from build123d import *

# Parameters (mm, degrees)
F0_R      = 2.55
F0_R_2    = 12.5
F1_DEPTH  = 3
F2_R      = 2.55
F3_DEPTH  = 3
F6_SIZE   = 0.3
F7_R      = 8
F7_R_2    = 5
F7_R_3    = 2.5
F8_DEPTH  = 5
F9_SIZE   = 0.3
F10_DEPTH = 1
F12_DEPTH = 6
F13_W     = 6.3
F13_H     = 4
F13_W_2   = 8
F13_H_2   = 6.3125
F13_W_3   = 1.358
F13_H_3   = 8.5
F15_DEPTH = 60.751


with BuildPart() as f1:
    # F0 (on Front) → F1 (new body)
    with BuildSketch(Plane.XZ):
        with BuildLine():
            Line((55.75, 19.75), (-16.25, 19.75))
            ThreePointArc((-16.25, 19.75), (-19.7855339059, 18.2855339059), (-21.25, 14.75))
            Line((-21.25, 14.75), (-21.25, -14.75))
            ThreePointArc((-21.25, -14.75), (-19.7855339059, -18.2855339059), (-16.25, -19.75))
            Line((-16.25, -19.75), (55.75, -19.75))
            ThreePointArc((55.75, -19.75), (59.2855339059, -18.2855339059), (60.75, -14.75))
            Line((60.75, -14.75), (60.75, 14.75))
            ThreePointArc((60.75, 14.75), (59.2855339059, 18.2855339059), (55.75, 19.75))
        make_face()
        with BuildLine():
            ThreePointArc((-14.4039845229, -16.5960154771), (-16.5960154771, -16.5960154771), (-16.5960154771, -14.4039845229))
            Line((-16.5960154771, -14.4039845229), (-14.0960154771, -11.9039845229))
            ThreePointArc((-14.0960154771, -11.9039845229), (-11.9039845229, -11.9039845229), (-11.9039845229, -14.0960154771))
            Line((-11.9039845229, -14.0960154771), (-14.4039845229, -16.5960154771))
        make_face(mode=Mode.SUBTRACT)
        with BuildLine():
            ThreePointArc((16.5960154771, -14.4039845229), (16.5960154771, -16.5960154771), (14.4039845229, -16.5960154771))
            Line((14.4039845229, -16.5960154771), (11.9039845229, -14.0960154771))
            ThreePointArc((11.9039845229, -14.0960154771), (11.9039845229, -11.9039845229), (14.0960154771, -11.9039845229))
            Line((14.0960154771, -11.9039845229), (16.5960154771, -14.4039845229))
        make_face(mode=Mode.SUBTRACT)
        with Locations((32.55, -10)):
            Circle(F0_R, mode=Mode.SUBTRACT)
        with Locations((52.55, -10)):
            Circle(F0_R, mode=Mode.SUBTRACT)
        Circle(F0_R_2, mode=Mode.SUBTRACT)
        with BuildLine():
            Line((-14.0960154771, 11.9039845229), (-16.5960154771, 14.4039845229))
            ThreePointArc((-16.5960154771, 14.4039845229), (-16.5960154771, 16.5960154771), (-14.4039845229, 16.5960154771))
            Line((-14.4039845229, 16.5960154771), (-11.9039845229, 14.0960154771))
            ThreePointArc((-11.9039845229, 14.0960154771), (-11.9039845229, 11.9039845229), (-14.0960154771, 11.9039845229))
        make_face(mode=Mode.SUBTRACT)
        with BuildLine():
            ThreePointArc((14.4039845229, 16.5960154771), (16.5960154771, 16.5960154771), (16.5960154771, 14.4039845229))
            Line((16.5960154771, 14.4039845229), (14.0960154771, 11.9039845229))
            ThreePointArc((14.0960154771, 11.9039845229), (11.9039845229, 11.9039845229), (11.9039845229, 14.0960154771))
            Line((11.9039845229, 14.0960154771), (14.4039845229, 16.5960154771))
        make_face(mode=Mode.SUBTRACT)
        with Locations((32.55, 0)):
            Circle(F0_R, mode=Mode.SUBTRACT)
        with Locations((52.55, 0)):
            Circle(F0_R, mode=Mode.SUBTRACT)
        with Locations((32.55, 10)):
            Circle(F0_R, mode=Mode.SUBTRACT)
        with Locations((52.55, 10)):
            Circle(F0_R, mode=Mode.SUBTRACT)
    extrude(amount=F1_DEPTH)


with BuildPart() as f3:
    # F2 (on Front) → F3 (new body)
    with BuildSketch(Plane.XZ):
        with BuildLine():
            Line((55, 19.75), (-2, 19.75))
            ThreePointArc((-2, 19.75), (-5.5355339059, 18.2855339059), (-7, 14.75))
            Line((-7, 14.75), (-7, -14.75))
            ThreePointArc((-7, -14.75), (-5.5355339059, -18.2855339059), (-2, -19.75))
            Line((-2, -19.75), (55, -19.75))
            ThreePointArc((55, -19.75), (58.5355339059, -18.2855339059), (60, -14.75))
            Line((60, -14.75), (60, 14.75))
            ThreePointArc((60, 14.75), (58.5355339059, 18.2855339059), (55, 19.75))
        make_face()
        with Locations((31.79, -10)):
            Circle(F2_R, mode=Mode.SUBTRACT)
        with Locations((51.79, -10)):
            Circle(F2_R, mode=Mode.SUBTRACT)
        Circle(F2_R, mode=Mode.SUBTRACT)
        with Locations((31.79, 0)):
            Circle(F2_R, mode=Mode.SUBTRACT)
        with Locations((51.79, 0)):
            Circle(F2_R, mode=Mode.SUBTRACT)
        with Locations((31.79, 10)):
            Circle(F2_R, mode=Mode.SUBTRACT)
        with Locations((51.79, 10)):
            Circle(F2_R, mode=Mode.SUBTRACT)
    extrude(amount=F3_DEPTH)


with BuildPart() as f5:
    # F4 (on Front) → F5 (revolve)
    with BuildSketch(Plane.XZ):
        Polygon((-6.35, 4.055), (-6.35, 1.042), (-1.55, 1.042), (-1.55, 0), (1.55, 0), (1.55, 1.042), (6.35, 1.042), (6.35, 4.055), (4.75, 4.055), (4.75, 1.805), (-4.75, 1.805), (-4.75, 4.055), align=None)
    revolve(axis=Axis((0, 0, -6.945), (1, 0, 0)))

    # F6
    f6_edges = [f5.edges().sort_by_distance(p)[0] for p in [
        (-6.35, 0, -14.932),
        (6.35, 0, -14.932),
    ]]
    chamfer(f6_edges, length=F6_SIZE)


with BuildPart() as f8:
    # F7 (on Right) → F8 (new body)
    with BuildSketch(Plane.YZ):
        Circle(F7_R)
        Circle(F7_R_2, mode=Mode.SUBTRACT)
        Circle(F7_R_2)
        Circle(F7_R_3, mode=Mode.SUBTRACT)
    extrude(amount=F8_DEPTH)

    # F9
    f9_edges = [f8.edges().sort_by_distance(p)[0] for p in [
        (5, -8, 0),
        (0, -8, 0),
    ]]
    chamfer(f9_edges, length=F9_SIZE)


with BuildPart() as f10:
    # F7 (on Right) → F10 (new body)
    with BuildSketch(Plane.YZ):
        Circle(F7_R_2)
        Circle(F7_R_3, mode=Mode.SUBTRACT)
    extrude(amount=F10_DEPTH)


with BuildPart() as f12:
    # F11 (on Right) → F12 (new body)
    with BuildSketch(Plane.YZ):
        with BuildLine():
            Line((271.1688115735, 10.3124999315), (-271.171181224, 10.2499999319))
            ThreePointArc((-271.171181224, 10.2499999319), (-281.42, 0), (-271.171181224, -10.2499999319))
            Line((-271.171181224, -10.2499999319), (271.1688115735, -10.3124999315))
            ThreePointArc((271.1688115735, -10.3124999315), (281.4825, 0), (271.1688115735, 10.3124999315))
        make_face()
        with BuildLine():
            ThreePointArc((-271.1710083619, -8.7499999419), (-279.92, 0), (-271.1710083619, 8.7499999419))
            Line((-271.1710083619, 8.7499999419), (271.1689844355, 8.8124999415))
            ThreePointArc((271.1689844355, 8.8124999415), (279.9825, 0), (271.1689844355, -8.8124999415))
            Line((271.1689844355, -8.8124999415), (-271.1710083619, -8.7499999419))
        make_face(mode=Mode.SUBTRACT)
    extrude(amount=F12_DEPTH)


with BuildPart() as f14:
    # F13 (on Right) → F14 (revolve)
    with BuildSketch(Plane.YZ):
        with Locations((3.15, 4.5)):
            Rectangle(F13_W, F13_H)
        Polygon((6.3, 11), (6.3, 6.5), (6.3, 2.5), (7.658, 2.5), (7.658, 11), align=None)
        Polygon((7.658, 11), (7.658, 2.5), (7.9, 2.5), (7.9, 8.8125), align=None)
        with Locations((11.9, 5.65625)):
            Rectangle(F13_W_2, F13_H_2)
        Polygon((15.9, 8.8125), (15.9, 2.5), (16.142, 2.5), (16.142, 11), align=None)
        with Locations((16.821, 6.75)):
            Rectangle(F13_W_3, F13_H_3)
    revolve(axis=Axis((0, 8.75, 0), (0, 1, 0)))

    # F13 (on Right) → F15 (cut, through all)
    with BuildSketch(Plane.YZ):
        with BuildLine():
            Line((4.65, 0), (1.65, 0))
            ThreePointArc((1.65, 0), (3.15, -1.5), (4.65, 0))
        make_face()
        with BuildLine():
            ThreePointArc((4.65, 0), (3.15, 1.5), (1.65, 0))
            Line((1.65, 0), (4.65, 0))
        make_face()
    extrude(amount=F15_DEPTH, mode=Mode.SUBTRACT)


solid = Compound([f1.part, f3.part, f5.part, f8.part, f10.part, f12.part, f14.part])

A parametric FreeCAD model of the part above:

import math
import FreeCAD as App
import Part
import Sketcher

V = App.Vector


def edges_at(feature, points):
    """Names of the edges that pass closest to the given points."""
    edges = feature.Shape.Edges
    near = lambda p: min(range(len(edges)), key=lambda i: edges[i].distToShape(Part.Vertex(*p))[0])
    return sorted({f"Edge{near(p) + 1}" for p in points})

doc = App.newDocument("Part")
body = doc.addObject("PartDesign::Body", "Body")

# Sketch on XZ plane
sketch1 = body.newObject("Sketcher::SketchObject", "Sketch")
sketch1.AttachmentSupport = (doc.getObject("XZ_Plane"), [""])
sketch1.MapMode = "FlatFace"
sketch1.addGeometry(Part.LineSegment(V(55.75, 19.75, 0), V(-16.25, 19.75, 0)), False)
sketch1.addGeometry(Part.ArcOfCircle(Part.Circle(V(-16.25, 14.75, 0), V(0, 0, 1), 5), math.radians(90), math.radians(180)), False)
sketch1.addGeometry(Part.LineSegment(V(-21.25, 14.75, 0), V(-21.25, -14.75, 0)), False)
sketch1.addGeometry(Part.ArcOfCircle(Part.Circle(V(-16.25, -14.75, 0), V(0, 0, 1), 5), math.radians(180), math.radians(270)), False)
sketch1.addGeometry(Part.LineSegment(V(-16.25, -19.75, 0), V(55.75, -19.75, 0)), False)
sketch1.addGeometry(Part.ArcOfCircle(Part.Circle(V(55.75, -14.75, 0), V(0, 0, 1), 5), math.radians(-90), math.radians(0)), False)
sketch1.addGeometry(Part.LineSegment(V(60.75, -14.75, 0), V(60.75, 14.75, 0)), False)
sketch1.addGeometry(Part.ArcOfCircle(Part.Circle(V(55.75, 14.75, 0), V(0, 0, 1), 5), math.radians(0), math.radians(90)), False)
sketch1.addGeometry(Part.LineSegment(V(-11.903985, -14.096015, 0), V(-14.403985, -16.596015, 0)), False)
sketch1.addGeometry(Part.ArcOfCircle(Part.Circle(V(-15.5, -15.5, 0), V(0, 0, 1), 1.55), math.radians(135), math.radians(315)), False)
sketch1.addGeometry(Part.LineSegment(V(-16.596015, -14.403985, 0), V(-14.096015, -11.903985, 0)), False)
sketch1.addGeometry(Part.ArcOfCircle(Part.Circle(V(-13, -13, 0), V(0, 0, 1), 1.55), math.radians(-45), math.radians(135)), False)
sketch1.addGeometry(Part.LineSegment(V(14.096015, -11.903985, 0), V(16.596015, -14.403985, 0)), False)
sketch1.addGeometry(Part.ArcOfCircle(Part.Circle(V(15.5, -15.5, 0), V(0, 0, 1), 1.55), math.radians(-135), math.radians(45)), False)
sketch1.addGeometry(Part.LineSegment(V(14.403985, -16.596015, 0), V(11.903985, -14.096015, 0)), False)
sketch1.addGeometry(Part.ArcOfCircle(Part.Circle(V(13, -13, 0), V(0, 0, 1), 1.55), math.radians(45), math.radians(225)), False)
sketch1.addGeometry(Part.Circle(V(32.55, -10, 0), V(0, 0, 1), 2.55), False)
sketch1.addGeometry(Part.Circle(V(52.55, -10, 0), V(0, 0, 1), 2.55), False)
sketch1.addGeometry(Part.Circle(V(0, 0, 0), V(0, 0, 1), 12.5), False)
sketch1.addGeometry(Part.ArcOfCircle(Part.Circle(V(-13, 13, 0), V(0, 0, 1), 1.55), math.radians(-135), math.radians(45)), False)
sketch1.addGeometry(Part.LineSegment(V(-14.096015, 11.903985, 0), V(-16.596015, 14.403985, 0)), False)
sketch1.addGeometry(Part.ArcOfCircle(Part.Circle(V(-15.5, 15.5, 0), V(0, 0, 1), 1.55), math.radians(45), math.radians(225)), False)
sketch1.addGeometry(Part.LineSegment(V(-14.403985, 16.596015, 0), V(-11.903985, 14.096015, 0)), False)
sketch1.addGeometry(Part.LineSegment(V(11.903985, 14.096015, 0), V(14.403985, 16.596015, 0)), False)
sketch1.addGeometry(Part.ArcOfCircle(Part.Circle(V(15.5, 15.5, 0), V(0, 0, 1), 1.55), math.radians(-45), math.radians(135)), False)
sketch1.addGeometry(Part.LineSegment(V(16.596015, 14.403985, 0), V(14.096015, 11.903985, 0)), False)
sketch1.addGeometry(Part.ArcOfCircle(Part.Circle(V(13, 13, 0), V(0, 0, 1), 1.55), math.radians(135), math.radians(315)), False)
sketch1.addGeometry(Part.Circle(V(32.55, 0, 0), V(0, 0, 1), 2.55), False)
sketch1.addGeometry(Part.Circle(V(52.55, 0, 0), V(0, 0, 1), 2.55), False)
sketch1.addGeometry(Part.Circle(V(32.55, 10, 0), V(0, 0, 1), 2.55), False)
sketch1.addGeometry(Part.Circle(V(52.55, 10, 0), V(0, 0, 1), 2.55), False)
sketch1.addConstraint(Sketcher.Constraint("Tangent", 0, 2, 1, 1))
sketch1.addConstraint(Sketcher.Constraint("Tangent", 1, 2, 2, 1))
sketch1.addConstraint(Sketcher.Constraint("Tangent", 2, 2, 3, 1))
sketch1.addConstraint(Sketcher.Constraint("Tangent", 3, 2, 4, 1))
sketch1.addConstraint(Sketcher.Constraint("Tangent", 4, 2, 5, 1))
sketch1.addConstraint(Sketcher.Constraint("Tangent", 5, 2, 6, 1))
sketch1.addConstraint(Sketcher.Constraint("Tangent", 6, 2, 7, 1))
sketch1.addConstraint(Sketcher.Constraint("Tangent", 7, 2, 0, 1))
sketch1.addConstraint(Sketcher.Constraint("Tangent", 8, 2, 9, 2))
sketch1.addConstraint(Sketcher.Constraint("Tangent", 9, 1, 10, 1))
sketch1.addConstraint(Sketcher.Constraint("Tangent", 10, 2, 11, 2))
sketch1.addConstraint(Sketcher.Constraint("Tangent", 11, 1, 8, 1))
sketch1.addConstraint(Sketcher.Constraint("Tangent", 12, 2, 13, 2))
sketch1.addConstraint(Sketcher.Constraint("Tangent", 13, 1, 14, 1))
sketch1.addConstraint(Sketcher.Constraint("Tangent", 14, 2, 15, 2))
sketch1.addConstraint(Sketcher.Constraint("Tangent", 15, 1, 12, 1))
sketch1.addConstraint(Sketcher.Constraint("Tangent", 19, 1, 20, 1))
sketch1.addConstraint(Sketcher.Constraint("Tangent", 20, 2, 21, 2))
sketch1.addConstraint(Sketcher.Constraint("Tangent", 21, 1, 22, 1))
sketch1.addConstraint(Sketcher.Constraint("Tangent", 22, 2, 19, 2))
sketch1.addConstraint(Sketcher.Constraint("Tangent", 23, 2, 24, 2))
sketch1.addConstraint(Sketcher.Constraint("Tangent", 24, 1, 25, 1))
sketch1.addConstraint(Sketcher.Constraint("Tangent", 25, 2, 26, 2))
sketch1.addConstraint(Sketcher.Constraint("Tangent", 26, 1, 23, 1))
sketch1.addConstraint(Sketcher.Constraint("Horizontal", 0))
sketch1.addConstraint(Sketcher.Constraint("Vertical", 2))
sketch1.addConstraint(Sketcher.Constraint("Horizontal", 4))
sketch1.addConstraint(Sketcher.Constraint("Vertical", 6))
sketch1.addConstraint(Sketcher.Constraint("Coincident", 18, 3, -1, 1))
sketch1.addConstraint(Sketcher.Constraint("Equal", 1, 3))
sketch1.addConstraint(Sketcher.Constraint("Equal", 3, 5))
sketch1.addConstraint(Sketcher.Constraint("Equal", 5, 7))
sketch1.addConstraint(Sketcher.Constraint("Equal", 9, 11))
sketch1.addConstraint(Sketcher.Constraint("Equal", 11, 13))
sketch1.addConstraint(Sketcher.Constraint("Equal", 13, 15))
sketch1.addConstraint(Sketcher.Constraint("Equal", 16, 17))
sketch1.addConstraint(Sketcher.Constraint("Equal", 15, 19))
sketch1.addConstraint(Sketcher.Constraint("Equal", 19, 21))
sketch1.addConstraint(Sketcher.Constraint("Equal", 21, 24))
sketch1.addConstraint(Sketcher.Constraint("Equal", 24, 26))
sketch1.addConstraint(Sketcher.Constraint("Equal", 17, 27))
sketch1.addConstraint(Sketcher.Constraint("Equal", 27, 28))
sketch1.addConstraint(Sketcher.Constraint("Equal", 28, 29))
sketch1.addConstraint(Sketcher.Constraint("Equal", 29, 30))
sketch1.addConstraint(Sketcher.Constraint("Symmetric", 15, 3, 19, 3, -1, 1))
sketch1.addConstraint(Sketcher.Constraint("Symmetric", 13, 3, 21, 3, -1, 1))
sketch1.addConstraint(Sketcher.Constraint("Symmetric", 9, 3, 24, 3, -1, 1))
sketch1.addConstraint(Sketcher.Constraint("Symmetric", 11, 3, 26, 3, -1, 1))
sketch1.addConstraint(Sketcher.Constraint("Symmetric", 9, 3, 13, 3, -2))
sketch1.addConstraint(Sketcher.Constraint("Symmetric", 11, 3, 15, 3, -2))
sketch1.addConstraint(Sketcher.Constraint("Symmetric", 16, 3, 29, 3, -1))
sketch1.addConstraint(Sketcher.Constraint("Symmetric", 17, 3, 30, 3, -1))
sketch1.addConstraint(Sketcher.Constraint("PointOnObject", 27, 3, -1))
sketch1.addConstraint(Sketcher.Constraint("PointOnObject", 28, 3, -1))
sketch1.addConstraint(Sketcher.Constraint("Perpendicular", 10, 12))
sketch1.addConstraint(Sketcher.Constraint("Horizontal", 16, 3, 17, 3))
sketch1.addConstraint(Sketcher.Constraint("Vertical", 16, 3, 27, 3))
sketch1.addConstraint(Sketcher.Constraint("Vertical", 17, 3, 28, 3))
sketch1.addConstraint(Sketcher.Constraint("Diameter", 18, 25.0))
sketch1.addConstraint(Sketcher.Constraint("Radius", 1, 5.0))
sketch1.addConstraint(Sketcher.Constraint("Diameter", 16, 5.1))
sketch1.addConstraint(Sketcher.Constraint("DistanceX", 0, 2, 0, 1, 72.0))
sketch1.addConstraint(Sketcher.Constraint("Radius", 9, 1.55))
sketch1.addConstraint(Sketcher.Constraint("DistanceY", 2, 2, 2, 1, 29.5))
sketch1.addConstraint(Sketcher.Constraint("DistanceX", 11, 3, -1, 1, 13.0))
sketch1.addConstraint(Sketcher.Constraint("DistanceY", 11, 3, -1, 1, 13.0))
sketch1.addConstraint(Sketcher.Constraint("DistanceY", 16, 3, -1, 1, 10.0))
sketch1.addConstraint(Sketcher.Constraint("DistanceX", 9, 3, 13, 3, 31.0))
sketch1.addConstraint(Sketcher.Constraint("DistanceX", 16, 3, 17, 3, 20.0))
sketch1.addConstraint(Sketcher.Constraint("DistanceX", 16, 3, 5, 3, 23.2))
sketch1.addConstraint(Sketcher.Constraint("DistanceX", 1, 3, -1, 1, 16.25))
sketch1.addConstraint(Sketcher.Constraint("DistanceY", -1, 1, 1, 3, 14.75))
pad1 = body.newObject("PartDesign::Pad", "Pad")
pad1.Profile = sketch1
pad1.Length = 3
body2 = doc.addObject("PartDesign::Body", "Body001")

# Sketch on XZ plane
sketch2 = body2.newObject("Sketcher::SketchObject", "Sketch001")
sketch2.AttachmentSupport = (doc.getObject("XZ_Plane001"), [""])
sketch2.MapMode = "FlatFace"
sketch2.addGeometry(Part.LineSegment(V(55, 19.75, 0), V(-2, 19.75, 0)), False)
sketch2.addGeometry(Part.ArcOfCircle(Part.Circle(V(-2, 14.75, 0), V(0, 0, 1), 5), math.radians(90), math.radians(180)), False)
sketch2.addGeometry(Part.LineSegment(V(-7, 14.75, 0), V(-7, -14.75, 0)), False)
sketch2.addGeometry(Part.ArcOfCircle(Part.Circle(V(-2, -14.75, 0), V(0, 0, 1), 5), math.radians(180), math.radians(270)), False)
sketch2.addGeometry(Part.LineSegment(V(-2, -19.75, 0), V(55, -19.75, 0)), False)
sketch2.addGeometry(Part.ArcOfCircle(Part.Circle(V(55, -14.75, 0), V(0, 0, 1), 5), math.radians(-90), math.radians(0)), False)
sketch2.addGeometry(Part.LineSegment(V(60, -14.75, 0), V(60, 14.75, 0)), False)
sketch2.addGeometry(Part.ArcOfCircle(Part.Circle(V(55, 14.75, 0), V(0, 0, 1), 5), math.radians(0), math.radians(90)), False)
sketch2.addGeometry(Part.Circle(V(0, 0, 0), V(0, 0, 1), 2.55), False)
sketch2.addGeometry(Part.Circle(V(31.79, -10, 0), V(0, 0, 1), 2.55), False)
sketch2.addGeometry(Part.Circle(V(51.79, -10, 0), V(0, 0, 1), 2.55), False)
sketch2.addGeometry(Part.Circle(V(31.79, 0, 0), V(0, 0, 1), 2.55), False)
sketch2.addGeometry(Part.Circle(V(51.79, 0, 0), V(0, 0, 1), 2.55), False)
sketch2.addGeometry(Part.Circle(V(31.79, 10, 0), V(0, 0, 1), 2.55), False)
sketch2.addGeometry(Part.Circle(V(51.79, 10, 0), V(0, 0, 1), 2.55), False)
sketch2.addConstraint(Sketcher.Constraint("Tangent", 0, 2, 1, 1))
sketch2.addConstraint(Sketcher.Constraint("Tangent", 1, 2, 2, 1))
sketch2.addConstraint(Sketcher.Constraint("Tangent", 2, 2, 3, 1))
sketch2.addConstraint(Sketcher.Constraint("Tangent", 3, 2, 4, 1))
sketch2.addConstraint(Sketcher.Constraint("Tangent", 4, 2, 5, 1))
sketch2.addConstraint(Sketcher.Constraint("Tangent", 5, 2, 6, 1))
sketch2.addConstraint(Sketcher.Constraint("Tangent", 6, 2, 7, 1))
sketch2.addConstraint(Sketcher.Constraint("Tangent", 7, 2, 0, 1))
sketch2.addConstraint(Sketcher.Constraint("Horizontal", 0))
sketch2.addConstraint(Sketcher.Constraint("Vertical", 2))
sketch2.addConstraint(Sketcher.Constraint("Horizontal", 4))
sketch2.addConstraint(Sketcher.Constraint("Vertical", 6))
sketch2.addConstraint(Sketcher.Constraint("Coincident", 8, 3, -1, 1))
sketch2.addConstraint(Sketcher.Constraint("Equal", 1, 3))
sketch2.addConstraint(Sketcher.Constraint("Equal", 3, 5))
sketch2.addConstraint(Sketcher.Constraint("Equal", 5, 7))
sketch2.addConstraint(Sketcher.Constraint("Equal", 8, 9))
sketch2.addConstraint(Sketcher.Constraint("Equal", 9, 10))
sketch2.addConstraint(Sketcher.Constraint("Equal", 10, 11))
sketch2.addConstraint(Sketcher.Constraint("Equal", 11, 12))
sketch2.addConstraint(Sketcher.Constraint("Equal", 12, 13))
sketch2.addConstraint(Sketcher.Constraint("Equal", 13, 14))
sketch2.addConstraint(Sketcher.Constraint("Symmetric", 9, 3, 13, 3, -1))
sketch2.addConstraint(Sketcher.Constraint("Symmetric", 10, 3, 14, 3, -1))
sketch2.addConstraint(Sketcher.Constraint("PointOnObject", 11, 3, -1))
sketch2.addConstraint(Sketcher.Constraint("PointOnObject", 12, 3, -1))
sketch2.addConstraint(Sketcher.Constraint("Horizontal", 9, 3, 10, 3))
sketch2.addConstraint(Sketcher.Constraint("Vertical", 9, 3, 11, 3))
sketch2.addConstraint(Sketcher.Constraint("Vertical", 10, 3, 12, 3))
sketch2.addConstraint(Sketcher.Constraint("Radius", 1, 5.0))
sketch2.addConstraint(Sketcher.Constraint("Diameter", 8, 5.1))
sketch2.addConstraint(Sketcher.Constraint("DistanceX", 0, 2, 0, 1, 57.0))
sketch2.addConstraint(Sketcher.Constraint("DistanceY", 2, 2, 2, 1, 29.5))
sketch2.addConstraint(Sketcher.Constraint("DistanceX", 1, 3, -1, 1, 2.0))
sketch2.addConstraint(Sketcher.Constraint("DistanceY", 9, 3, -1, 1, 10.0))
sketch2.addConstraint(Sketcher.Constraint("DistanceX", 9, 3, 10, 3, 20.0))
sketch2.addConstraint(Sketcher.Constraint("DistanceY", -1, 1, 1, 3, 14.75))
sketch2.addConstraint(Sketcher.Constraint("DistanceX", -1, 1, 9, 3, 31.79))
pad2 = body2.newObject("PartDesign::Pad", "Pad001")
pad2.Profile = sketch2
pad2.Length = 3
body3 = doc.addObject("PartDesign::Body", "Body002")

# Sketch on XZ plane
sketch3 = body3.newObject("Sketcher::SketchObject", "Sketch002")
sketch3.AttachmentSupport = (doc.getObject("XZ_Plane002"), [""])
sketch3.MapMode = "FlatFace"
sketch3.addGeometry(Part.LineSegment(V(-6.35, 4.055, 0), V(-6.35, 1.042, 0)), False)
sketch3.addGeometry(Part.LineSegment(V(-6.35, 1.042, 0), V(-1.55, 1.042, 0)), False)
sketch3.addGeometry(Part.LineSegment(V(-1.55, 1.042, 0), V(-1.55, 0, 0)), False)
sketch3.addGeometry(Part.LineSegment(V(-1.55, 0, 0), V(1.55, 0, 0)), False)
sketch3.addGeometry(Part.LineSegment(V(1.55, 0, 0), V(1.55, 1.042, 0)), False)
sketch3.addGeometry(Part.LineSegment(V(1.55, 1.042, 0), V(6.35, 1.042, 0)), False)
sketch3.addGeometry(Part.LineSegment(V(6.35, 1.042, 0), V(6.35, 4.055, 0)), False)
sketch3.addGeometry(Part.LineSegment(V(6.35, 4.055, 0), V(4.75, 4.055, 0)), False)
sketch3.addGeometry(Part.LineSegment(V(4.75, 4.055, 0), V(4.75, 1.805, 0)), False)
sketch3.addGeometry(Part.LineSegment(V(4.75, 1.805, 0), V(-4.75, 1.805, 0)), False)
sketch3.addGeometry(Part.LineSegment(V(-4.75, 1.805, 0), V(-4.75, 4.055, 0)), False)
sketch3.addGeometry(Part.LineSegment(V(-4.75, 4.055, 0), V(-6.35, 4.055, 0)), False)
sketch3.addGeometry(Part.LineSegment(V(-6.35, -6.945, 0), V(6.35, -6.945, 0)), True)  # axis
sketch3.addConstraint(Sketcher.Constraint("Coincident", 0, 2, 1, 1))
sketch3.addConstraint(Sketcher.Constraint("Coincident", 1, 2, 2, 1))
sketch3.addConstraint(Sketcher.Constraint("Coincident", 2, 2, 3, 1))
sketch3.addConstraint(Sketcher.Constraint("Coincident", 3, 2, 4, 1))
sketch3.addConstraint(Sketcher.Constraint("Coincident", 4, 2, 5, 1))
sketch3.addConstraint(Sketcher.Constraint("Coincident", 5, 2, 6, 1))
sketch3.addConstraint(Sketcher.Constraint("Coincident", 6, 2, 7, 1))
sketch3.addConstraint(Sketcher.Constraint("Coincident", 7, 2, 8, 1))
sketch3.addConstraint(Sketcher.Constraint("Coincident", 8, 2, 9, 1))
sketch3.addConstraint(Sketcher.Constraint("Coincident", 9, 2, 10, 1))
sketch3.addConstraint(Sketcher.Constraint("Coincident", 10, 2, 11, 1))
sketch3.addConstraint(Sketcher.Constraint("Coincident", 11, 2, 0, 1))
sketch3.addConstraint(Sketcher.Constraint("Vertical", 0))
sketch3.addConstraint(Sketcher.Constraint("Horizontal", 1))
sketch3.addConstraint(Sketcher.Constraint("Vertical", 2))
sketch3.addConstraint(Sketcher.Constraint("Horizontal", 3))
sketch3.addConstraint(Sketcher.Constraint("Vertical", 4))
sketch3.addConstraint(Sketcher.Constraint("Horizontal", 5))
sketch3.addConstraint(Sketcher.Constraint("Vertical", 6))
sketch3.addConstraint(Sketcher.Constraint("Horizontal", 7))
sketch3.addConstraint(Sketcher.Constraint("Vertical", 8))
sketch3.addConstraint(Sketcher.Constraint("Horizontal", 9))
sketch3.addConstraint(Sketcher.Constraint("Vertical", 10))
sketch3.addConstraint(Sketcher.Constraint("Horizontal", 11))
sketch3.addConstraint(Sketcher.Constraint("Horizontal", 12))
sketch3.addConstraint(Sketcher.Constraint("Symmetric", 2, 2, 3, 2, -1, 1))
sketch3.addConstraint(Sketcher.Constraint("Symmetric", 0, 2, 5, 2, -2))
sketch3.addConstraint(Sketcher.Constraint("Symmetric", 7, 2, 10, 2, -2))
sketch3.addConstraint(Sketcher.Constraint("Vertical", 11, 2, 12, 1))
sketch3.addConstraint(Sketcher.Constraint("Vertical", 6, 2, 12, 2))
sketch3.addConstraint(Sketcher.Constraint("DistanceX", 1, 1, 1, 2, 4.8))
sketch3.addConstraint(Sketcher.Constraint("DistanceX", 3, 1, 3, 2, 3.1))
sketch3.addConstraint(Sketcher.Constraint("DistanceX", 7, 2, 7, 1, 1.6))
sketch3.addConstraint(Sketcher.Constraint("DistanceY", 8, 2, 8, 1, 2.25))
sketch3.addConstraint(Sketcher.Constraint("DistanceY", 0, 2, 0, 1, 3.013))
sketch3.addConstraint(Sketcher.Constraint("DistanceY", 2, 2, 2, 1, 1.042))
sketch3.addConstraint(Sketcher.Constraint("DistanceY", 12, 1, 9, 2, 8.75))
revolution = body3.newObject("PartDesign::Revolution", "Revolution")
revolution.Profile = sketch3
revolution.ReferenceAxis = (sketch3, ["Axis0"])
revolution.Angle = 360
doc.recompute()

chamfer = body3.newObject("PartDesign::Chamfer", "Chamfer")
chamfer.Base = (revolution, edges_at(revolution, [(-6.35, 0, -14.932), (6.35, 0, -14.932)]))
chamfer.Size = 0.3
body4 = doc.addObject("PartDesign::Body", "Body003")

# Sketch on YZ plane
sketch4 = body4.newObject("Sketcher::SketchObject", "Sketch003")
sketch4.AttachmentSupport = (doc.getObject("YZ_Plane003"), [""])
sketch4.MapMode = "FlatFace"
sketch4.addGeometry(Part.Circle(V(0, 0, 0), V(0, 0, 1), 8), False)
sketch4.addGeometry(Part.Circle(V(0, 0, 0), V(0, 0, 1), 2.5), False)
sketch4.addConstraint(Sketcher.Constraint("Coincident", 0, 3, -1, 1))
sketch4.addConstraint(Sketcher.Constraint("Coincident", 1, 3, -1, 1))
sketch4.addConstraint(Sketcher.Constraint("Diameter", 0, 16.0))
sketch4.addConstraint(Sketcher.Constraint("Diameter", 1, 5.0))
pad3 = body4.newObject("PartDesign::Pad", "Pad002")
pad3.Profile = sketch4
pad3.Length = 5
doc.recompute()

chamfer2 = body4.newObject("PartDesign::Chamfer", "Chamfer001")
chamfer2.Base = (pad3, edges_at(pad3, [(5, -8, 0), (0, -8, 0)]))
chamfer2.Size = 0.3
body5 = doc.addObject("PartDesign::Body", "Body004")

# Sketch on YZ plane
sketch5 = body5.newObject("Sketcher::SketchObject", "Sketch004")
sketch5.AttachmentSupport = (doc.getObject("YZ_Plane004"), [""])
sketch5.MapMode = "FlatFace"
sketch5.addGeometry(Part.Circle(V(0, 0, 0), V(0, 0, 1), 5), False)
sketch5.addGeometry(Part.Circle(V(0, 0, 0), V(0, 0, 1), 2.5), False)
sketch5.addConstraint(Sketcher.Constraint("Coincident", 0, 3, -1, 1))
sketch5.addConstraint(Sketcher.Constraint("Coincident", 1, 3, -1, 1))
sketch5.addConstraint(Sketcher.Constraint("Diameter", 0, 10.0))
sketch5.addConstraint(Sketcher.Constraint("Diameter", 1, 5.0))
pad4 = body5.newObject("PartDesign::Pad", "Pad003")
pad4.Profile = sketch5
pad4.Length = 1
body6 = doc.addObject("PartDesign::Body", "Body005")

# Sketch on YZ plane
sketch6 = body6.newObject("Sketcher::SketchObject", "Sketch005")
sketch6.AttachmentSupport = (doc.getObject("YZ_Plane005"), [""])
sketch6.MapMode = "FlatFace"
sketch6.addGeometry(Part.LineSegment(V(271.168812, 10.3125, 0), V(-271.171181, 10.25, 0)), False)
sketch6.addGeometry(Part.ArcOfCircle(Part.Circle(V(-271.17, 0, 0), V(0, 0, 1), 10.25), math.radians(90.006603), math.radians(269.993397)), False)
sketch6.addGeometry(Part.LineSegment(V(-271.171181, -10.25, 0), V(271.168812, -10.3125, 0)), False)
sketch6.addGeometry(Part.ArcOfCircle(Part.Circle(V(271.17, 0, 0), V(0, 0, 1), 10.3125), math.radians(-90.006603), math.radians(90.006603)), False)
sketch6.addGeometry(Part.LineSegment(V(271.168984, -8.8125, 0), V(-271.171008, -8.75, 0)), False)
sketch6.addGeometry(Part.ArcOfCircle(Part.Circle(V(-271.17, 0, 0), V(0, 0, 1), 8.75), math.radians(90.006603), math.radians(269.993397)), False)
sketch6.addGeometry(Part.LineSegment(V(-271.171008, 8.75, 0), V(271.168984, 8.8125, 0)), False)
sketch6.addGeometry(Part.ArcOfCircle(Part.Circle(V(271.17, 0, 0), V(0, 0, 1), 8.8125), math.radians(-90.006603), math.radians(90.006603)), False)
sketch6.addConstraint(Sketcher.Constraint("Tangent", 0, 2, 1, 1))
sketch6.addConstraint(Sketcher.Constraint("Tangent", 1, 2, 2, 1))
sketch6.addConstraint(Sketcher.Constraint("Tangent", 2, 2, 3, 1))
sketch6.addConstraint(Sketcher.Constraint("Tangent", 3, 2, 0, 1))
sketch6.addConstraint(Sketcher.Constraint("Tangent", 4, 2, 5, 2))
sketch6.addConstraint(Sketcher.Constraint("Tangent", 5, 1, 6, 1))
sketch6.addConstraint(Sketcher.Constraint("Tangent", 6, 2, 7, 2))
sketch6.addConstraint(Sketcher.Constraint("Tangent", 7, 1, 4, 1))
sketch6.addConstraint(Sketcher.Constraint("Coincident", 5, 3, 1, 3))
sketch6.addConstraint(Sketcher.Constraint("Coincident", 7, 3, 3, 3))
sketch6.addConstraint(Sketcher.Constraint("Symmetric", 1, 3, 3, 3, -1, 1))
sketch6.addConstraint(Sketcher.Constraint("PointOnObject", 1, 3, -1))
sketch6.addConstraint(Sketcher.Constraint("Parallel", 2, 4))
sketch6.addConstraint(Sketcher.Constraint("Radius", 1, 10.25))
sketch6.addConstraint(Sketcher.Constraint("Radius", 5, 8.75))
sketch6.addConstraint(Sketcher.Constraint("Radius", 3, 10.3125))
sketch6.addConstraint(Sketcher.Constraint("DistanceX", 1, 3, -1, 1, 271.17))
pad5 = body6.newObject("PartDesign::Pad", "Pad004")
pad5.Profile = sketch6
pad5.Length = 6
body7 = doc.addObject("PartDesign::Body", "Body006")

# Sketch on YZ plane
sketch7 = body7.newObject("Sketcher::SketchObject", "Sketch006")
sketch7.AttachmentSupport = (doc.getObject("YZ_Plane006"), [""])
sketch7.MapMode = "FlatFace"
sketch7.addGeometry(Part.LineSegment(V(0, 6.5, 0), V(0, 2.5, 0)), False)
sketch7.addGeometry(Part.LineSegment(V(0, 2.5, 0), V(17.5, 2.5, 0)), False)
sketch7.addGeometry(Part.LineSegment(V(17.5, 2.5, 0), V(17.5, 11, 0)), False)
sketch7.addGeometry(Part.LineSegment(V(17.5, 11, 0), V(16.142, 11, 0)), False)
sketch7.addGeometry(Part.LineSegment(V(16.142, 11, 0), V(15.9, 8.8125, 0)), False)
sketch7.addGeometry(Part.LineSegment(V(15.9, 8.8125, 0), V(7.9, 8.8125, 0)), False)
sketch7.addGeometry(Part.LineSegment(V(7.9, 8.8125, 0), V(7.658, 11, 0)), False)
sketch7.addGeometry(Part.LineSegment(V(7.658, 11, 0), V(6.3, 11, 0)), False)
sketch7.addGeometry(Part.LineSegment(V(6.3, 11, 0), V(6.3, 6.5, 0)), False)
sketch7.addGeometry(Part.LineSegment(V(6.3, 6.5, 0), V(0, 6.5, 0)), False)
sketch7.addConstraint(Sketcher.Constraint("Coincident", 0, 2, 1, 1))
sketch7.addConstraint(Sketcher.Constraint("Coincident", 1, 2, 2, 1))
sketch7.addConstraint(Sketcher.Constraint("Coincident", 2, 2, 3, 1))
sketch7.addConstraint(Sketcher.Constraint("Coincident", 3, 2, 4, 1))
sketch7.addConstraint(Sketcher.Constraint("Coincident", 4, 2, 5, 1))
sketch7.addConstraint(Sketcher.Constraint("Coincident", 5, 2, 6, 1))
sketch7.addConstraint(Sketcher.Constraint("Coincident", 6, 2, 7, 1))
sketch7.addConstraint(Sketcher.Constraint("Coincident", 7, 2, 8, 1))
sketch7.addConstraint(Sketcher.Constraint("Coincident", 8, 2, 9, 1))
sketch7.addConstraint(Sketcher.Constraint("Coincident", 9, 2, 0, 1))
sketch7.addConstraint(Sketcher.Constraint("Vertical", 0))
sketch7.addConstraint(Sketcher.Constraint("Horizontal", 1))
sketch7.addConstraint(Sketcher.Constraint("Vertical", 2))
sketch7.addConstraint(Sketcher.Constraint("Horizontal", 3))
sketch7.addConstraint(Sketcher.Constraint("Horizontal", 5))
sketch7.addConstraint(Sketcher.Constraint("Horizontal", 7))
sketch7.addConstraint(Sketcher.Constraint("Vertical", 8))
sketch7.addConstraint(Sketcher.Constraint("Horizontal", 9))
sketch7.addConstraint(Sketcher.Constraint("PointOnObject", 0, 2, -2))
sketch7.addConstraint(Sketcher.Constraint("Horizontal", 3, 2, 6, 2))
sketch7.addConstraint(Sketcher.Constraint("Equal", 3, 7))
sketch7.addConstraint(Sketcher.Constraint("Equal", 4, 6))
sketch7.addConstraint(Sketcher.Constraint("DistanceX", 5, 2, 5, 1, 8.0))
sketch7.addConstraint(Sketcher.Constraint("DistanceY", 0, 2, 0, 1, 4.0))
sketch7.addConstraint(Sketcher.Constraint("DistanceX", 1, 1, 1, 2, 17.5))
sketch7.addConstraint(Sketcher.Constraint("DistanceX", 9, 2, 9, 1, 6.3))
sketch7.addConstraint(Sketcher.Constraint("DistanceY", 2, 1, 2, 2, 8.5))
sketch7.addConstraint(Sketcher.Constraint("DistanceY", -1, 1, 2, 2, 11.0))
sketch7.addConstraint(Sketcher.Constraint("DistanceX", 3, 2, 3, 1, 1.358))
sketch7.addConstraint(Sketcher.Constraint("DistanceY", -1, 1, 4, 2, 8.8125))
revolution2 = body7.newObject("PartDesign::Revolution", "Revolution001")
revolution2.Profile = sketch7
revolution2.ReferenceAxis = (sketch7, ["H_Axis"])
revolution2.Angle = 360

# Sketch on YZ plane
sketch8 = body7.newObject("Sketcher::SketchObject", "Sketch007")
sketch8.AttachmentSupport = (doc.getObject("YZ_Plane006"), [""])
sketch8.MapMode = "FlatFace"
sketch8.addGeometry(Part.Circle(V(3.15, 0, 0), V(0, 0, 1), 1.5), False)
sketch8.addConstraint(Sketcher.Constraint("PointOnObject", 0, 3, -1))
sketch8.addConstraint(Sketcher.Constraint("Diameter", 0, 3.0))
sketch8.addConstraint(Sketcher.Constraint("DistanceX", -1, 1, 0, 3, 3.15))
pocket1 = body7.newObject("PartDesign::Pocket", "Pocket")
pocket1.Profile = sketch8
pocket1.Type = "ThroughAll"
pocket1.Reversed = True

doc.recompute()
